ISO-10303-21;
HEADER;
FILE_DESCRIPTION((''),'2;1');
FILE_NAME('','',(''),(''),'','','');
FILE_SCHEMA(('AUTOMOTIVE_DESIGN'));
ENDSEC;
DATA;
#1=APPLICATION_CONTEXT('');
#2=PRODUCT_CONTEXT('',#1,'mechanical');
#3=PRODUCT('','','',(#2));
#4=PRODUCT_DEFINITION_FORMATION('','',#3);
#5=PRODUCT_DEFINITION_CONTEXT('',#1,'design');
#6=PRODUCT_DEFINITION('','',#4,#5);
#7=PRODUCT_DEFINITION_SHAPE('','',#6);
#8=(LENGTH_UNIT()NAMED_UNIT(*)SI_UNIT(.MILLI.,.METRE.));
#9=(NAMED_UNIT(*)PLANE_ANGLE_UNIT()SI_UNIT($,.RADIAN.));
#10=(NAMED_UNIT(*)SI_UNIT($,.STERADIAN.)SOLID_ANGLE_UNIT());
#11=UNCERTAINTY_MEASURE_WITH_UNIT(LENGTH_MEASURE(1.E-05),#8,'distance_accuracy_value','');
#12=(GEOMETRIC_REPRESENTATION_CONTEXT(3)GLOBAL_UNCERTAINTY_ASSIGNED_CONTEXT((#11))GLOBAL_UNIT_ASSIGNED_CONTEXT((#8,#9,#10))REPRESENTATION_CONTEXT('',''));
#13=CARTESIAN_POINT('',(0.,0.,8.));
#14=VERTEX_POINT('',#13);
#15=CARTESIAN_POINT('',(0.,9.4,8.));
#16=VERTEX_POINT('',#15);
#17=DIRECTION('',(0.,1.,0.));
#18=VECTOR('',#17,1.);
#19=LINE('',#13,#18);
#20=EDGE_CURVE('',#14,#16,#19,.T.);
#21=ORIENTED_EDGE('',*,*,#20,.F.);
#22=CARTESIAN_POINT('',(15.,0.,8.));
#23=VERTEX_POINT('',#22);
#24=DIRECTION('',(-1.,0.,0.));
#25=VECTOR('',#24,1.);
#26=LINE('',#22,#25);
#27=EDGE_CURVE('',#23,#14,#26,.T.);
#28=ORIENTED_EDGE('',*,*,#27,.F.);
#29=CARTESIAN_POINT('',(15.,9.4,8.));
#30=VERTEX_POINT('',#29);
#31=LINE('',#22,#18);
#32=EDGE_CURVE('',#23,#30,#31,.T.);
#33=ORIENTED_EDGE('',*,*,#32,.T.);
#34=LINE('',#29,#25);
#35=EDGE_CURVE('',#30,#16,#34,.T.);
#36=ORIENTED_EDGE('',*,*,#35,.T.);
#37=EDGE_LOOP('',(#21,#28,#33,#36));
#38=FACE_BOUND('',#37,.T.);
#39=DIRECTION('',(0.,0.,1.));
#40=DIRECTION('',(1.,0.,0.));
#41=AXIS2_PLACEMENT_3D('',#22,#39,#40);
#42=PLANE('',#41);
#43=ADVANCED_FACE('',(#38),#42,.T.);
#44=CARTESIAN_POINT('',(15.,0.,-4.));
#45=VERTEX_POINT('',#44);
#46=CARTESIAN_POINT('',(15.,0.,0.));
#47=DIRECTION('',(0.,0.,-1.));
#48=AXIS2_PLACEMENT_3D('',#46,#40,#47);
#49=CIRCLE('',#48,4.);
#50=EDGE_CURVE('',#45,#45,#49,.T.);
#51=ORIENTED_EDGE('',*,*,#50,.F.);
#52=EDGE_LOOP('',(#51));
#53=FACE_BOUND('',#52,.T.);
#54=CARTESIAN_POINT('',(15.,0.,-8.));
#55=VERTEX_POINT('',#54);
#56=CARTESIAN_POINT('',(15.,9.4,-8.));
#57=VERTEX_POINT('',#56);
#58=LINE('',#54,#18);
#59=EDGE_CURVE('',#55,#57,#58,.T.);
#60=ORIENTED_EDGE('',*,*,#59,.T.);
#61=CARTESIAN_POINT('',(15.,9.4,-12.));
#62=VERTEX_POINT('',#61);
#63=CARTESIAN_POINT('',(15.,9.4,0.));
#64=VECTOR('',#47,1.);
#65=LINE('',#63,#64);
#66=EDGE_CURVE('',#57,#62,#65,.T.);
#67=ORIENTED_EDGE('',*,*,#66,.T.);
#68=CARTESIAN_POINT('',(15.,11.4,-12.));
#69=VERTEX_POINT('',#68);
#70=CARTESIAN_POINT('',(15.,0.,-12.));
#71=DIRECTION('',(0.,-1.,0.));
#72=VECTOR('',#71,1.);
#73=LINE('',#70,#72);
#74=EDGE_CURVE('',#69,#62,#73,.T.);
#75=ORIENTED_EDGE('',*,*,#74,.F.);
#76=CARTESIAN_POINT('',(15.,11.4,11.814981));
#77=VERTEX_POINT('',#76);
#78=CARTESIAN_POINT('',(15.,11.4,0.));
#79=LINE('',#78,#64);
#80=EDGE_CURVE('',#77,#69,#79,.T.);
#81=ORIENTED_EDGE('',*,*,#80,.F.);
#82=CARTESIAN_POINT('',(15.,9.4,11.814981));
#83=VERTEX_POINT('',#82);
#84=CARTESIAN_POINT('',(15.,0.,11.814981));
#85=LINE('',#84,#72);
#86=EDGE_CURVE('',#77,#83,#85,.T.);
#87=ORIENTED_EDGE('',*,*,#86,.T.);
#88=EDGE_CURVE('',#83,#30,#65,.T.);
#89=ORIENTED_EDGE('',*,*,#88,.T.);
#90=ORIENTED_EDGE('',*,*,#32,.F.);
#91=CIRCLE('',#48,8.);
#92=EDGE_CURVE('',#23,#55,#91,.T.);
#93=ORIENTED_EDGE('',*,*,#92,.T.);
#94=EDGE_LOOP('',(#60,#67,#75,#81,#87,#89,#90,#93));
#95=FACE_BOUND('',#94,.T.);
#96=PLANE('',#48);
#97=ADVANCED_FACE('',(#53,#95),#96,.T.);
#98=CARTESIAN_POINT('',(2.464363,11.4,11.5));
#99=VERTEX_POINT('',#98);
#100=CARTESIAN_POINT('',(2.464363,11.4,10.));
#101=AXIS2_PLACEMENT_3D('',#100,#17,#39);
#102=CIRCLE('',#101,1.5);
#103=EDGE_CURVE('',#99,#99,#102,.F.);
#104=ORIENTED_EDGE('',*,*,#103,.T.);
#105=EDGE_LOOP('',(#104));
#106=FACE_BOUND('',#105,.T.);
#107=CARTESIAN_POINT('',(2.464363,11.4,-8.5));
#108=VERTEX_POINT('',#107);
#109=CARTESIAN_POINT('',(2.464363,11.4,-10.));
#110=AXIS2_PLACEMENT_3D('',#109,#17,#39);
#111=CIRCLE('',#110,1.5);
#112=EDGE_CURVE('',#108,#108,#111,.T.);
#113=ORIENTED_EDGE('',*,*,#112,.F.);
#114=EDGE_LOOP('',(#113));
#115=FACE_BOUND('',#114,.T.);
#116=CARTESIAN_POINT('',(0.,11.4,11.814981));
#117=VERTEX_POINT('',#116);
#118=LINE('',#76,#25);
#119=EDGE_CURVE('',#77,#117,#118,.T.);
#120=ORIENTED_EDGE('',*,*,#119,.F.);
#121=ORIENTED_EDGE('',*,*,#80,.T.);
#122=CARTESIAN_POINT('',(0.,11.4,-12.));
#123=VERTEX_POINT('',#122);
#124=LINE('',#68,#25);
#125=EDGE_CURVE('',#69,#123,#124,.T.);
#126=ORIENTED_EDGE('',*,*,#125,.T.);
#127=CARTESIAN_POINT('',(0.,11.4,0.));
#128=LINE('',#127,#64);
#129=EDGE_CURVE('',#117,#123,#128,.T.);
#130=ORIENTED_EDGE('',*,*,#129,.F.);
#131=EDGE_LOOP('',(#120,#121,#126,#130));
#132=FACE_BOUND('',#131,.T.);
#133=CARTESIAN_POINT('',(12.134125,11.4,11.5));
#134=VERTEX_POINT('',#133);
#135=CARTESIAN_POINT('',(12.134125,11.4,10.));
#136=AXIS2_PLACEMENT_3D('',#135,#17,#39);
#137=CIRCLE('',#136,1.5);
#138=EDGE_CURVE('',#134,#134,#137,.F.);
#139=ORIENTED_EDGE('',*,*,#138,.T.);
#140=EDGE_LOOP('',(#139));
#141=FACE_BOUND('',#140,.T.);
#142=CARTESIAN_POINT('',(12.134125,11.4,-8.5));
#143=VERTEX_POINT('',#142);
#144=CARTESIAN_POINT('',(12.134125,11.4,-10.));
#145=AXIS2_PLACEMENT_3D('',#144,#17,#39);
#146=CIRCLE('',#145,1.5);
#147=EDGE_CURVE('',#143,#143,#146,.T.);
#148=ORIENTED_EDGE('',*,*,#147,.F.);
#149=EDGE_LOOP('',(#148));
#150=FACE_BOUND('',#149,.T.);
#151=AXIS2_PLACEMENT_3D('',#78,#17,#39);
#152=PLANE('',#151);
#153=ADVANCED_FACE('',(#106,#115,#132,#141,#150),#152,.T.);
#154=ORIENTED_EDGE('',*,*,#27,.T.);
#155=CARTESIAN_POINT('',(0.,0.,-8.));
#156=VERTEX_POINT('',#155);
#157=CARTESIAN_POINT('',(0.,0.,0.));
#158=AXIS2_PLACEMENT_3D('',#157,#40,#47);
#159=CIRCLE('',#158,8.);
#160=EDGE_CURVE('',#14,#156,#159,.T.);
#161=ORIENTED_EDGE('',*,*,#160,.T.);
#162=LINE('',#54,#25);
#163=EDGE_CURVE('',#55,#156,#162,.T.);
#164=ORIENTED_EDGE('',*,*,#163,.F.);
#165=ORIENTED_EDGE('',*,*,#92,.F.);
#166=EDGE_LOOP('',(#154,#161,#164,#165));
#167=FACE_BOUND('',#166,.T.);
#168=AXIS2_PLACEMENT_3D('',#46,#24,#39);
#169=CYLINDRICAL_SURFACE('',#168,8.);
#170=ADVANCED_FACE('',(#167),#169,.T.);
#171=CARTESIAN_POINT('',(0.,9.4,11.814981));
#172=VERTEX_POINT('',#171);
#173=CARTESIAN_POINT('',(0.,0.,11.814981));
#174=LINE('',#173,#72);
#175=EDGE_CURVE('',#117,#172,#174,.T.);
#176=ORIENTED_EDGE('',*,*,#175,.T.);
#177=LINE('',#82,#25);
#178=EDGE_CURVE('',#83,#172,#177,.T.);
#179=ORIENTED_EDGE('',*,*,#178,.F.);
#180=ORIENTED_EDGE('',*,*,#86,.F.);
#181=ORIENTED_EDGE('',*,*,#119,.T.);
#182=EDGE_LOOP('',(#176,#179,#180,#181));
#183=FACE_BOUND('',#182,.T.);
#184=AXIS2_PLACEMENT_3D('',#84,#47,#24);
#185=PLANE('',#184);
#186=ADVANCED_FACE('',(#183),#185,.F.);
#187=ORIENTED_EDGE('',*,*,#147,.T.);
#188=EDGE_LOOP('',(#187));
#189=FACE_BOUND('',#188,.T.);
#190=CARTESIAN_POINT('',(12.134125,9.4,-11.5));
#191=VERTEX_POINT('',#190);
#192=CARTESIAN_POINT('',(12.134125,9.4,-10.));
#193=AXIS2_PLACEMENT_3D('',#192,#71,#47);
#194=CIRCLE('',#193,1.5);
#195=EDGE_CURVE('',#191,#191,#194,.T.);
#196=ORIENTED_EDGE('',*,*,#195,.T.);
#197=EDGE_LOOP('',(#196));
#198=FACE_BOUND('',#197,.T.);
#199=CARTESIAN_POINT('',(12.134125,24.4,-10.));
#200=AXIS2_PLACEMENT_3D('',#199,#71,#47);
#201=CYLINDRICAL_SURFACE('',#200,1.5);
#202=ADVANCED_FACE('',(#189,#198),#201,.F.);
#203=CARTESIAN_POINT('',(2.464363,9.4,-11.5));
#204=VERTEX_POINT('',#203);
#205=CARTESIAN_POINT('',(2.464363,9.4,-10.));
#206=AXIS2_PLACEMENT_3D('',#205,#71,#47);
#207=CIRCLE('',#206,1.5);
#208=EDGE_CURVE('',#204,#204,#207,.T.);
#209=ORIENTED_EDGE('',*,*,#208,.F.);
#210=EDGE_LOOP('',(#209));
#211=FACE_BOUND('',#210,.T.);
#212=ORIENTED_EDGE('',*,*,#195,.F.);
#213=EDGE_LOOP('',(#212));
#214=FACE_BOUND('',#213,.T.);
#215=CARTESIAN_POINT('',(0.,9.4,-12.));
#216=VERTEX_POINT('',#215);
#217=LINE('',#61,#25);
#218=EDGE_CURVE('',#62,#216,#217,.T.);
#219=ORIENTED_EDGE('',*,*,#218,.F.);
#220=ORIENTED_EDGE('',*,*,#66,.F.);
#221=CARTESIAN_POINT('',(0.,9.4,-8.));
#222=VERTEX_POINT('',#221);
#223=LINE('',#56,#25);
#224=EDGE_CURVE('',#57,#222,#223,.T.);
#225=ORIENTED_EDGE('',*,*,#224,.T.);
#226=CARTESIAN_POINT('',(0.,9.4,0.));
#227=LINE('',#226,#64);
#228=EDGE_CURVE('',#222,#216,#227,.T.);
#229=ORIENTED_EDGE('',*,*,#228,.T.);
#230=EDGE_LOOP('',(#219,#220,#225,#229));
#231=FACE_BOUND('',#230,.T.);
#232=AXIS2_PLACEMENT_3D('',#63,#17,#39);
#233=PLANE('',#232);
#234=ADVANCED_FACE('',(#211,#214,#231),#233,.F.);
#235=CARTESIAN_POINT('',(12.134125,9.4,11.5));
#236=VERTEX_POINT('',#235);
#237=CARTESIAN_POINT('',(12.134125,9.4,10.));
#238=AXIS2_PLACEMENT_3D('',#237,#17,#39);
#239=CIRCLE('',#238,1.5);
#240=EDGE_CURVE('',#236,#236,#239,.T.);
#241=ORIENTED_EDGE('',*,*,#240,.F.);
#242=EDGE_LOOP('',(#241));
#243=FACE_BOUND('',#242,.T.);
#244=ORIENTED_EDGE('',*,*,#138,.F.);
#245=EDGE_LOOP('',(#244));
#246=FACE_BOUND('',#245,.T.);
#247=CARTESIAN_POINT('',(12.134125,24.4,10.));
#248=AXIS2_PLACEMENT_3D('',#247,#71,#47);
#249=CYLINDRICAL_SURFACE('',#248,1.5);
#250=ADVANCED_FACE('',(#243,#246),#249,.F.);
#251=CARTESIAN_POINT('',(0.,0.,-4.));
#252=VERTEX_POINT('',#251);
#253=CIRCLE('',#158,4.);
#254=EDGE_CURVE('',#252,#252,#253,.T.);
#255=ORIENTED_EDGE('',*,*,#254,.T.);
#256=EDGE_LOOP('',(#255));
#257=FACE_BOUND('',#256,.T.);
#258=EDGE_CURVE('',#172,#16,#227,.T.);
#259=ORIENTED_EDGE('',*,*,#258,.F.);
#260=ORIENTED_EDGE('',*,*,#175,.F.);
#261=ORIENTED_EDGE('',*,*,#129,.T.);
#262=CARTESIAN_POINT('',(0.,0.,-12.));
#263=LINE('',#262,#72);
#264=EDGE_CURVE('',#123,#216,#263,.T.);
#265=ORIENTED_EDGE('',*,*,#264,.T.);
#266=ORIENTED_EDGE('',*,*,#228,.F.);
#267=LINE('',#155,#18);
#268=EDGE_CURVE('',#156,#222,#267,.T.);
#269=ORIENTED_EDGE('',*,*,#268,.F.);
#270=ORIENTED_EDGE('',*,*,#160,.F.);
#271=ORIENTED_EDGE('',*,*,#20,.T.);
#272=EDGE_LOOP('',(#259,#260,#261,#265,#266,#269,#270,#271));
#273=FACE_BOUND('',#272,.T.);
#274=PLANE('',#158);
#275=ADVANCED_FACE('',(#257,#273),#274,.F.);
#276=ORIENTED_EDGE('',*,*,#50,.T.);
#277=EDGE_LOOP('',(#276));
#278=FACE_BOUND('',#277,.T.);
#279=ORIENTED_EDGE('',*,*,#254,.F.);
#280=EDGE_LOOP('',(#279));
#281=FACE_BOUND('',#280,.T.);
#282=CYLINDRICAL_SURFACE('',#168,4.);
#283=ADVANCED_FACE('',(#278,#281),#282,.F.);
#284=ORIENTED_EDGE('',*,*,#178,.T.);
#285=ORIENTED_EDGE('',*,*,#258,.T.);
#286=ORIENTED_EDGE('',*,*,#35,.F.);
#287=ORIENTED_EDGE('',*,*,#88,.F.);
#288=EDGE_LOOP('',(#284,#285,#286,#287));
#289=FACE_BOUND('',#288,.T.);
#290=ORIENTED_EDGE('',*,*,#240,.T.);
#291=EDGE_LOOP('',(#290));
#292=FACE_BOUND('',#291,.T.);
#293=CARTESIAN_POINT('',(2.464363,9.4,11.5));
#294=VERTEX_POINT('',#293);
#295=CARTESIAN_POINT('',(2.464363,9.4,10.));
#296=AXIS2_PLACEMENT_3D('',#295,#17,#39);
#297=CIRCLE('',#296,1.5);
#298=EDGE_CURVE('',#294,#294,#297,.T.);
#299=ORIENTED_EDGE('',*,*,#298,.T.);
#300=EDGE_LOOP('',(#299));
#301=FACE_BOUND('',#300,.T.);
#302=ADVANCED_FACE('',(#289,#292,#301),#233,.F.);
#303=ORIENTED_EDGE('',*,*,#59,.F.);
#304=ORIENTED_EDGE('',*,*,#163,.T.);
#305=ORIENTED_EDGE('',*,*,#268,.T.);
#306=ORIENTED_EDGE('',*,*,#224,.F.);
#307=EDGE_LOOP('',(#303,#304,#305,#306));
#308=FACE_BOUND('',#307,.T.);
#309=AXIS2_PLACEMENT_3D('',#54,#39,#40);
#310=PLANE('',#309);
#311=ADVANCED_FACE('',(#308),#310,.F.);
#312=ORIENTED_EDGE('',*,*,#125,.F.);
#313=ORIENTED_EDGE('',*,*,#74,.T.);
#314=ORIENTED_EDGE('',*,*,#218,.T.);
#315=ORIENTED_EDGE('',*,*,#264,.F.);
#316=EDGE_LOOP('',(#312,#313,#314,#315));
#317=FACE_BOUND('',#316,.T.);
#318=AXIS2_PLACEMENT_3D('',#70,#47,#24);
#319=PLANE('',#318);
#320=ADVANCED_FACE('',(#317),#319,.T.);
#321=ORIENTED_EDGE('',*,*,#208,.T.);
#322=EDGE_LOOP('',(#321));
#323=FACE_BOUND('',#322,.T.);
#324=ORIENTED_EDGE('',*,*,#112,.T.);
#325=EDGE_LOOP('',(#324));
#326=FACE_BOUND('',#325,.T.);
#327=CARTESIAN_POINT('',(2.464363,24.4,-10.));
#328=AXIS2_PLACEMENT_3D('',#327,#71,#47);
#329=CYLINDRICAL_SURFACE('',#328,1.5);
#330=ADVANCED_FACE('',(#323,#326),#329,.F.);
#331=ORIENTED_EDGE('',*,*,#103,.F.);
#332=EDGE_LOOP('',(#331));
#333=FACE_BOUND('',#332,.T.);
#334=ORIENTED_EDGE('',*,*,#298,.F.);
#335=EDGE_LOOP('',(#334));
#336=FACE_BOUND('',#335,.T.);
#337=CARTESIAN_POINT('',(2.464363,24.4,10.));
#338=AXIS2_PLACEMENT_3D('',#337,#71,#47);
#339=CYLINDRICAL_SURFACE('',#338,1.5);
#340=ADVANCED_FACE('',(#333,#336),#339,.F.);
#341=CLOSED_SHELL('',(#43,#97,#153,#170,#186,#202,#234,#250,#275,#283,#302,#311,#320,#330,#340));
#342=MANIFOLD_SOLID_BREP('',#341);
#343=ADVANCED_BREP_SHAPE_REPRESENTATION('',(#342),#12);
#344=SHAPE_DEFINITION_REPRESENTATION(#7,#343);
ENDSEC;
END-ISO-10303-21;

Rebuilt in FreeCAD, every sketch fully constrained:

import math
import FreeCAD as App
import Part
import Sketcher

V = App.Vector

doc = App.newDocument("Part")
params = doc.addObject("Spreadsheet::Sheet", "Params")
for row, (alias, value) in enumerate([
    ("sketch1_diameter", "8 mm"),
    ("sketch1_radius", "8 mm"),
    ("sketch1_width", "2 mm"),
    ("sketch1_height", "4 mm"),
    ("sketch1_width2", "9.4 mm"),
    ("pad1_length", "15 mm"),
    ("sketch2_diameter", "3 mm"),
    ("pocket1_length", "15 mm"),
], start=1):
    params.set(f"A{row}", alias)
    params.set(f"B{row}", "=" + value)
    params.setAlias(f"B{row}", alias)

body = doc.addObject("PartDesign::Body", "Body")

sketch1 = body.newObject("Sketcher::SketchObject", "Sketch")
sketch1.AttachmentSupport = (doc.getObject("YZ_Plane"), [""])
sketch1.MapMode = "FlatFace"
sketch1.addGeometry([
    Part.LineSegment(V(11.4, 11.8, 0), V(9.4, 11.8, 0)),
    Part.LineSegment(V(9.4, 11.8, 0), V(9.4, 8, 0)),
    Part.LineSegment(V(9.4, 8, 0), V(0, 8, 0)),
    Part.ArcOfCircle(Part.Circle(V(0, 0, 0), V(0, 0, 1), 8), math.radians(90), math.radians(270)),
    Part.LineSegment(V(0, -8, 0), V(9.4, -8, 0)),
    Part.LineSegment(V(9.4, -8, 0), V(9.4, -12, 0)),
    Part.LineSegment(V(9.4, -12, 0), V(11.4, -12, 0)),
    Part.LineSegment(V(11.4, -12, 0), V(11.4, 11.8, 0)),
    Part.Circle(V(0, 0, 0), V(0, 0, 1), 4),
], False)
sketch1.addConstraint([
    Sketcher.Constraint("Coincident", 0, 2, 1, 1),
    Sketcher.Constraint("Coincident", 1, 2, 2, 1),
    Sketcher.Constraint("Tangent", 2, 2, 3, 1),
    Sketcher.Constraint("Tangent", 3, 2, 4, 1),
    Sketcher.Constraint("Coincident", 4, 2, 5, 1),
    Sketcher.Constraint("Coincident", 5, 2, 6, 1),
    Sketcher.Constraint("Coincident", 6, 2, 7, 1),
    Sketcher.Constraint("Coincident", 7, 2, 0, 1),
    Sketcher.Constraint("Horizontal", 0),
    Sketcher.Constraint("Vertical", 1),
    Sketcher.Constraint("Horizontal", 2),
    Sketcher.Constraint("Horizontal", 4),
    Sketcher.Constraint("Vertical", 5),
    Sketcher.Constraint("Horizontal", 6),
    Sketcher.Constraint("Vertical", 7),
    Sketcher.Constraint("Coincident", 3, 3, -1, 1),
    Sketcher.Constraint("Coincident", 8, 3, -1, 1),
    Sketcher.Constraint("Vertical", 1, 2, 4, 2),
    Sketcher.Constraint("Diameter", 8, 8.0),
    Sketcher.Constraint("Radius", 3, 8.0),
    Sketcher.Constraint("DistanceX", 0, 2, 0, 1, 2.0),
    Sketcher.Constraint("DistanceY", 5, 2, 5, 1, 4.0),
    Sketcher.Constraint("DistanceX", 2, 2, 2, 1, 9.4),
    Sketcher.Constraint("DistanceY", 1, 2, 1, 1, 3.814981),
])
sketch1.setExpression("Constraints[18]", "Params.sketch1_diameter")
sketch1.setExpression("Constraints[19]", "Params.sketch1_radius")
sketch1.setExpression("Constraints[20]", "Params.sketch1_width")
sketch1.setExpression("Constraints[21]", "Params.sketch1_height")
sketch1.setExpression("Constraints[22]", "Params.sketch1_width2")
pad1 = body.newObject("PartDesign::Pad", "Pad")
pad1.Profile = sketch1
pad1.setExpression("Length", "Params.pad1_length")

sketch2 = body.newObject("Sketcher::SketchObject", "Sketch001")
sketch2.AttachmentSupport = (doc.getObject("XZ_Plane"), [""])
sketch2.MapMode = "FlatFace"
sketch2.AttachmentOffset = App.Placement(V(0, 0, -9.4), App.Rotation())
sketch2.addGeometry([
    Part.Circle(V(2.5, -10, 0), V(0, 0, 1), 1.5),
    Part.Circle(V(12.1, -10, 0), V(0, 0, 1), 1.5),
], False)
sketch2.addConstraint([
    Sketcher.Constraint("Equal", 0, 1),
    Sketcher.Constraint("Horizontal", 0, 3, 1, 3),
    Sketcher.Constraint("Diameter", 0, 3.0),
    Sketcher.Constraint("DistanceY", 0, 3, -1, 1, 10.0),
    Sketcher.Constraint("DistanceX", -1, 1, 0, 3, 2.464363),
    Sketcher.Constraint("DistanceX", -1, 1, 1, 3, 12.134125),
])
sketch2.setExpression("Constraints[2]", "Params.sketch2_diameter")
pocket1 = body.newObject("PartDesign::Pocket", "Pocket")
pocket1.Profile = sketch2
pocket1.setExpression("Length", "Params.pocket1_length")
doc.recompute()

mirrored = body.newObject("PartDesign::Mirrored", "Mirrored")
mirrored.Originals = [pocket1]
mirrored.MirrorPlane = (doc.getObject("XY_Plane"), [""])
body.Tip = mirrored

doc.recompute()
